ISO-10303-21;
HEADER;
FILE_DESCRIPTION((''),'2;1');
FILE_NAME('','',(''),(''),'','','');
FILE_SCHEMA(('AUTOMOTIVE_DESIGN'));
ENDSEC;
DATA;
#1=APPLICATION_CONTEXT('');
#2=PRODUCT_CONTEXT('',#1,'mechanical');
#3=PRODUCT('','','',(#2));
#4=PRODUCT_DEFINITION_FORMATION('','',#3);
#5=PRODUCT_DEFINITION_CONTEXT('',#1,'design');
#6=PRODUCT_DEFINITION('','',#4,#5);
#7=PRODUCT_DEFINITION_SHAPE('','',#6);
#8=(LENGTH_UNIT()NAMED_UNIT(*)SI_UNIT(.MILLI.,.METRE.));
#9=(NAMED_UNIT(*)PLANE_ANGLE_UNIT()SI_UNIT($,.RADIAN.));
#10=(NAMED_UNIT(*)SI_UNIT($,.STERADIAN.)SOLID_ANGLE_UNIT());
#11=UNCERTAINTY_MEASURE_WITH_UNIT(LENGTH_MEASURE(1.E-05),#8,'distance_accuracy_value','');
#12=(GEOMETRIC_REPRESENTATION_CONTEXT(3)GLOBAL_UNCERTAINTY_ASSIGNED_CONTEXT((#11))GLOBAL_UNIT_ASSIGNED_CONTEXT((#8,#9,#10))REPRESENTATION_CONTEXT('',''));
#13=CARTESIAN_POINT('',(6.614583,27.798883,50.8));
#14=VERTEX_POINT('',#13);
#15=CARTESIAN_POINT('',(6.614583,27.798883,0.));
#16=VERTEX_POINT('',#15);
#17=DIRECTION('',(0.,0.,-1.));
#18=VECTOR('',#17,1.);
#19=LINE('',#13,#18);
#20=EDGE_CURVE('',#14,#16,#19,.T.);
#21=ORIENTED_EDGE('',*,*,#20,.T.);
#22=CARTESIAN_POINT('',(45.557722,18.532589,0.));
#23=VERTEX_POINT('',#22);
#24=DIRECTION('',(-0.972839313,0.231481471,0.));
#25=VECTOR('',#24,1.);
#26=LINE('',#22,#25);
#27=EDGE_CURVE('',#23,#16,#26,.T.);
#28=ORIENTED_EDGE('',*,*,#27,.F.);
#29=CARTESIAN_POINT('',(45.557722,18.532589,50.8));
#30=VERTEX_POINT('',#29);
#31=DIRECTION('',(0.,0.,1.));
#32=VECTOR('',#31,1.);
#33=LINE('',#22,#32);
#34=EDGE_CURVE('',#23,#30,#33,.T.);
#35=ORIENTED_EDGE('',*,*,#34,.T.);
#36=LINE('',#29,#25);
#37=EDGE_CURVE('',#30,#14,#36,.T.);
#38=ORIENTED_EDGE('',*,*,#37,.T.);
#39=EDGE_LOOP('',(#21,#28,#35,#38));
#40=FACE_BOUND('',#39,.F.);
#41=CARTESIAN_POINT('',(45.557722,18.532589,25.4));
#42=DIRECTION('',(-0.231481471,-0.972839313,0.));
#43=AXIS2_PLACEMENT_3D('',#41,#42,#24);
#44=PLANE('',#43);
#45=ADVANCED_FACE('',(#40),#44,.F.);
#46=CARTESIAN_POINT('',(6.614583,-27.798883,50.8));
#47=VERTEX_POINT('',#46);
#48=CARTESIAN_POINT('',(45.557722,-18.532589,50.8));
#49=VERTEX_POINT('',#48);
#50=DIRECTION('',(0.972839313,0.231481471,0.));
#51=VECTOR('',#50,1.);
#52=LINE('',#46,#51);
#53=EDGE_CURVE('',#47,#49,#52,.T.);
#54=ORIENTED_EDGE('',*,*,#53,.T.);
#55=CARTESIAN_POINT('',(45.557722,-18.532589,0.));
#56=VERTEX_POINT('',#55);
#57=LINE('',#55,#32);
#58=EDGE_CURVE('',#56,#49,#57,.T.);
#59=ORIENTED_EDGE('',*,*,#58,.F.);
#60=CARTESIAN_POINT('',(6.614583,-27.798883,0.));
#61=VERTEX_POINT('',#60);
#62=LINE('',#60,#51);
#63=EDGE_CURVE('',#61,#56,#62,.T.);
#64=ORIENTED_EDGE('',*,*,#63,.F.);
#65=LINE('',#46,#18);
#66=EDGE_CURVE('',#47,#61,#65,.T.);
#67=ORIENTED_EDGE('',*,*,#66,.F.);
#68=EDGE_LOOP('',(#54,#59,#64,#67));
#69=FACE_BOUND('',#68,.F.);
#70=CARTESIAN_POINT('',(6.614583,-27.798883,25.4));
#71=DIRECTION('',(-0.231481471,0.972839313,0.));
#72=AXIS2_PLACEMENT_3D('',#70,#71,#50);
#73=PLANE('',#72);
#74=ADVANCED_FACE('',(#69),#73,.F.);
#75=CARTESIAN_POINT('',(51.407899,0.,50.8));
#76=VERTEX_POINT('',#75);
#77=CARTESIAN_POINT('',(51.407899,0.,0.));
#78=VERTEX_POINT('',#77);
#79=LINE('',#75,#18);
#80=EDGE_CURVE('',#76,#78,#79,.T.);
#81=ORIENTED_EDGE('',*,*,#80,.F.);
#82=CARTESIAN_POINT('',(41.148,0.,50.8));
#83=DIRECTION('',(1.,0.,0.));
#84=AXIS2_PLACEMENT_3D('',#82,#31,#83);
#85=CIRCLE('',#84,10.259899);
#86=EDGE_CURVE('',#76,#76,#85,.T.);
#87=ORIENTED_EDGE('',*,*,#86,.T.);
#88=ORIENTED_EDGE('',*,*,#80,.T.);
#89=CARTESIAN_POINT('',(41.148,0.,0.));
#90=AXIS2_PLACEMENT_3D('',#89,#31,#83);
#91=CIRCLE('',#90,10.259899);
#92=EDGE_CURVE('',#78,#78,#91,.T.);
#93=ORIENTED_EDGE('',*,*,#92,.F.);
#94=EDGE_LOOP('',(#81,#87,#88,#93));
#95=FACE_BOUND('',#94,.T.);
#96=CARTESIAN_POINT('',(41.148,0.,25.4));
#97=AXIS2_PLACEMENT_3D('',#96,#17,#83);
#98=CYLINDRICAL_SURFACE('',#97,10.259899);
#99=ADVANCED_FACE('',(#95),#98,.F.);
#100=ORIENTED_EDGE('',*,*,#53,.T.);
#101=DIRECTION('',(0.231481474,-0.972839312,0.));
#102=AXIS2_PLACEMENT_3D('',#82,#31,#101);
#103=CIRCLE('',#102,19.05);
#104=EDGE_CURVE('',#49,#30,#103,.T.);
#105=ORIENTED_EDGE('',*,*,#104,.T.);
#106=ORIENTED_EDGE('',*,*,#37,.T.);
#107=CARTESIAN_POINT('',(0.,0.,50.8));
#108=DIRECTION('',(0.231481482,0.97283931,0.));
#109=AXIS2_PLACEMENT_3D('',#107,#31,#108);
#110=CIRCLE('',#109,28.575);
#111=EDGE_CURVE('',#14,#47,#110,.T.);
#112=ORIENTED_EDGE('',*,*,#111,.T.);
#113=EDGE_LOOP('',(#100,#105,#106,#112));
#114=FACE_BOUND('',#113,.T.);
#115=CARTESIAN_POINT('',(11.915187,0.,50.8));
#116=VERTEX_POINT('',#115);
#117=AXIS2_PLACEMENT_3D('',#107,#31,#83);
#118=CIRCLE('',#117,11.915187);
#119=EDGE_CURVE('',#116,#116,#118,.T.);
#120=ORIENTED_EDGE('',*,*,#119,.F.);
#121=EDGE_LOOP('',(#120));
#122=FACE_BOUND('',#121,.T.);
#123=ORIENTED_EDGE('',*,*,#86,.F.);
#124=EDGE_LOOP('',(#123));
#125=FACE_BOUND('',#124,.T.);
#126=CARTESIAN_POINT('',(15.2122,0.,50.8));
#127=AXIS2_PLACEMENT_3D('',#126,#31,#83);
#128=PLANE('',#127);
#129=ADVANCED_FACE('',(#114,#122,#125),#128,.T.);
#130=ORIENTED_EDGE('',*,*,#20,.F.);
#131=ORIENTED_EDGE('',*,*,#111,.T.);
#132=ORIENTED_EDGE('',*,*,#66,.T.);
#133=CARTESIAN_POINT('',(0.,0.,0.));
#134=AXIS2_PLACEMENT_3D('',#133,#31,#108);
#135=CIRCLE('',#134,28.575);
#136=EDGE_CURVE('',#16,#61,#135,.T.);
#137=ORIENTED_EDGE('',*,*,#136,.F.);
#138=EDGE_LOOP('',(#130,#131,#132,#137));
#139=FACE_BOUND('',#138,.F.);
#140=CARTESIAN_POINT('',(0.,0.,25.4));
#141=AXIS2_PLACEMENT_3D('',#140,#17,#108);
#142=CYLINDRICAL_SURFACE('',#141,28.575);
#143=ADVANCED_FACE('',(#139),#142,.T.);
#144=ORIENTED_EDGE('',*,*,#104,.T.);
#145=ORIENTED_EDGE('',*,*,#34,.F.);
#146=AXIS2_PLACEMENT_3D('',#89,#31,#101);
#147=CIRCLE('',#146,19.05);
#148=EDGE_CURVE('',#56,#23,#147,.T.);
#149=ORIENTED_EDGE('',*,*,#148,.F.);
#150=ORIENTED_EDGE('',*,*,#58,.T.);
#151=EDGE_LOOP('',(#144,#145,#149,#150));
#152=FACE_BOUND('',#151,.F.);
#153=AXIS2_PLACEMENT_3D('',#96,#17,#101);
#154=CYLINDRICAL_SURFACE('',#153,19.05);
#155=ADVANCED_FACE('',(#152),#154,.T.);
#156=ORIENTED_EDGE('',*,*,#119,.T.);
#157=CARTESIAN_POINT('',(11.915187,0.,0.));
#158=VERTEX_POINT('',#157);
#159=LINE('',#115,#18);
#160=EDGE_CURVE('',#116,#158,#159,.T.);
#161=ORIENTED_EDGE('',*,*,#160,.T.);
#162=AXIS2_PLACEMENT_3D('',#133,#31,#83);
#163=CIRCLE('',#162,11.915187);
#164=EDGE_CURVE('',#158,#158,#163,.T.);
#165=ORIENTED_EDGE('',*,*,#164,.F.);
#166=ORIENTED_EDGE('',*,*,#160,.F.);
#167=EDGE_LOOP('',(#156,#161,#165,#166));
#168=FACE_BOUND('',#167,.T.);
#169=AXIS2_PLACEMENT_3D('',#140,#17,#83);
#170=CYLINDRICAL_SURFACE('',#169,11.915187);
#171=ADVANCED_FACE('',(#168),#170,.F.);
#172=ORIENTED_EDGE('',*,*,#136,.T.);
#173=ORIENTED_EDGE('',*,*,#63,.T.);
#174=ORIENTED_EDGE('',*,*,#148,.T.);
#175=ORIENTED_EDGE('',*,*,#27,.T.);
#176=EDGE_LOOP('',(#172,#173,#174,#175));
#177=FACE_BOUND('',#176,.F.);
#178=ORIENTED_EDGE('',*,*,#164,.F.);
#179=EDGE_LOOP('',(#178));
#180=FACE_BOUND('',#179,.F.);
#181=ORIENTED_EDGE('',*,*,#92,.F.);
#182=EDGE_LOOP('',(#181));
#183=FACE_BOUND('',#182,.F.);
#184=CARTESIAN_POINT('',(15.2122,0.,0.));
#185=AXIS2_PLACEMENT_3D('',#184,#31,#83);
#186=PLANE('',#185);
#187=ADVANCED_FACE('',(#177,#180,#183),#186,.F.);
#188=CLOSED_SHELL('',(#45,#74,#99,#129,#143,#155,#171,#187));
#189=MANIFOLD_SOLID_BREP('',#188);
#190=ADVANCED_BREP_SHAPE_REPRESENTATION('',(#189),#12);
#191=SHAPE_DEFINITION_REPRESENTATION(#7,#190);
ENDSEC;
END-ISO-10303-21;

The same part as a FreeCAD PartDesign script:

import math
import FreeCAD as App
import Part
import Sketcher
from FreeCAD import Vector
Q = App.Units.Quantity

doc = App.newDocument("Part")
body = doc.addObject("PartDesign::Body", "Body")

sketch1 = body.newObject("Sketcher::SketchObject", "Sketch")
sketch1.AttachmentSupport = (doc.getObject("XY_Plane"), [""])
sketch1.MapMode = "FlatFace"
sketch1.addGeometry(Part.LineSegment(Vector(46, 19, 0), Vector(7, 28, 0)), False)
sketch1.addGeometry(Part.ArcOfCircle(Part.Circle(Vector(0, 0, 0), Vector(0, 0, 1), 29), math.radians(77), math.radians(283)), False)
sketch1.addGeometry(Part.LineSegment(Vector(7, -28, 0), Vector(46, -19, 0)), False)
sketch1.addGeometry(Part.ArcOfCircle(Part.Circle(Vector(41, 0, 0), Vector(0, 0, 1), 19), math.radians(-77), math.radians(77)), False)
sketch1.addGeometry(Part.Circle(Vector(0, 0, 0), Vector(0, 0, 1), 12), False)
sketch1.addGeometry(Part.Circle(Vector(41, 0, 0), Vector(0, 0, 1), 10), False)
sketch1.addConstraint(Sketcher.Constraint("Tangent", 0, 2, 1, 1))
sketch1.addConstraint(Sketcher.Constraint("Tangent", 1, 2, 2, 1))
sketch1.addConstraint(Sketcher.Constraint("Tangent", 2, 2, 3, 1))
sketch1.addConstraint(Sketcher.Constraint("Tangent", 3, 2, 0, 1))
sketch1.addConstraint(Sketcher.Constraint("Coincident", 1, 3, -1, 1))
sketch1.addConstraint(Sketcher.Constraint("Coincident", 4, 3, -1, 1))
sketch1.addConstraint(Sketcher.Constraint("Coincident", 5, 3, 3, 3))
sketch1.addConstraint(Sketcher.Constraint("PointOnObject", 3, 3, -1))
sketch1.addConstraint(Sketcher.Constraint("Radius", 3, Q("0.75 in")))
sketch1.addConstraint(Sketcher.Constraint("Radius", 1, Q("1.125 in")))
sketch1.addConstraint(Sketcher.Constraint("Diameter", 5, 20.519798))
sketch1.addConstraint(Sketcher.Constraint("DistanceX", -1, 1, 3, 3, Q("1.62 in")))
sketch1.addConstraint(Sketcher.Constraint("Diameter", 4, 23.830374))
pad1 = body.newObject("PartDesign::Pad", "Pad")
pad1.Profile = sketch1
pad1.Length = Q("1 in")

sketch2 = body.newObject("Sketcher::SketchObject", "Sketch001")
sketch2.AttachmentSupport = (doc.getObject("XY_Plane"), [""])
sketch2.MapMode = "FlatFace"
sketch2.AttachmentOffset = App.Placement(Vector(0, 0, 1 * 25.4), App.Rotation())
sketch2.addGeometry(Part.LineSegment(Vector(7, -28, 0), Vector(46, -19, 0)), False)
sketch2.addGeometry(Part.ArcOfCircle(Part.Circle(Vector(41, 0, 0), Vector(0, 0, 1), 19), math.radians(-77), math.radians(77)), False)
sketch2.addGeometry(Part.LineSegment(Vector(46, 19, 0), Vector(7, 28, 0)), False)
sketch2.addGeometry(Part.ArcOfCircle(Part.Circle(Vector(0, 0, 0), Vector(0, 0, 1), 29), math.radians(77), math.radians(283)), False)
sketch2.addGeometry(Part.Circle(Vector(0, 0, 0), Vector(0, 0, 1), 12), False)
sketch2.addGeometry(Part.Circle(Vector(41, 0, 0), Vector(0, 0, 1), 10), False)
sketch2.addConstraint(Sketcher.Constraint("Tangent", 0, 2, 1, 1))
sketch2.addConstraint(Sketcher.Constraint("Tangent", 1, 2, 2, 1))
sketch2.addConstraint(Sketcher.Constraint("Tangent", 2, 2, 3, 1))
sketch2.addConstraint(Sketcher.Constraint("Tangent", 3, 2, 0, 1))
sketch2.addConstraint(Sketcher.Constraint("Coincident", 3, 3, -1, 1))
sketch2.addConstraint(Sketcher.Constraint("Coincident", 4, 3, -1, 1))
sketch2.addConstraint(Sketcher.Constraint("Coincident", 5, 3, 1, 3))
sketch2.addConstraint(Sketcher.Constraint("PointOnObject", 1, 3, -1))
sketch2.addConstraint(Sketcher.Constraint("Radius", 1, Q("0.75 in")))
sketch2.addConstraint(Sketcher.Constraint("Radius", 3, Q("1.125 in")))
sketch2.addConstraint(Sketcher.Constraint("Diameter", 5, 20.519798))
sketch2.addConstraint(Sketcher.Constraint("DistanceX", -1, 1, 1, 3, Q("1.62 in")))
sketch2.addConstraint(Sketcher.Constraint("Diameter", 4, 23.830374))
pad2 = body.newObject("PartDesign::Pad", "Pad001")
pad2.Profile = sketch2
pad2.Length = Q("0.5 in")
pad2.Reversed = True

sketch3 = body.newObject("Sketcher::SketchObject", "Sketch002")
sketch3.AttachmentSupport = (doc.getObject("XY_Plane"), [""])
sketch3.MapMode = "FlatFace"
sketch3.AttachmentOffset = App.Placement(Vector(0, 0, 1 * 25.4), App.Rotation())
sketch3.addGeometry(Part.LineSegment(Vector(7, -28, 0), Vector(46, -19, 0)), False)
sketch3.addGeometry(Part.ArcOfCircle(Part.Circle(Vector(41, 0, 0), Vector(0, 0, 1), 19), math.radians(-77), math.radians(77)), False)
sketch3.addGeometry(Part.LineSegment(Vector(46, 19, 0), Vector(7, 28, 0)), False)
sketch3.addGeometry(Part.ArcOfCircle(Part.Circle(Vector(0, 0, 0), Vector(0, 0, 1), 29), math.radians(77), math.radians(283)), False)
sketch3.addGeometry(Part.Circle(Vector(0, 0, 0), Vector(0, 0, 1), 12), False)
sketch3.addGeometry(Part.Circle(Vector(41, 0, 0), Vector(0, 0, 1), 10), False)
sketch3.addConstraint(Sketcher.Constraint("Tangent", 0, 2, 1, 1))
sketch3.addConstraint(Sketcher.Constraint("Tangent", 1, 2, 2, 1))
sketch3.addConstraint(Sketcher.Constraint("Tangent", 2, 2, 3, 1))
sketch3.addConstraint(Sketcher.Constraint("Tangent", 3, 2, 0, 1))
sketch3.addConstraint(Sketcher.Constraint("Coincident", 3, 3, -1, 1))
sketch3.addConstraint(Sketcher.Constraint("Coincident", 4, 3, -1, 1))
sketch3.addConstraint(Sketcher.Constraint("Coincident", 5, 3, 1, 3))
sketch3.addConstraint(Sketcher.Constraint("PointOnObject", 1, 3, -1))
sketch3.addConstraint(Sketcher.Constraint("Radius", 1, Q("0.75 in")))
sketch3.addConstraint(Sketcher.Constraint("Radius", 3, Q("1.125 in")))
sketch3.addConstraint(Sketcher.Constraint("Diameter", 5, 20.519798))
sketch3.addConstraint(Sketcher.Constraint("DistanceX", -1, 1, 1, 3, Q("1.62 in")))
sketch3.addConstraint(Sketcher.Constraint("Diameter", 4, 23.830374))
pad3 = body.newObject("PartDesign::Pad", "Pad002")
pad3.Profile = sketch3
pad3.Length = Q("1 in")

doc.recompute()
